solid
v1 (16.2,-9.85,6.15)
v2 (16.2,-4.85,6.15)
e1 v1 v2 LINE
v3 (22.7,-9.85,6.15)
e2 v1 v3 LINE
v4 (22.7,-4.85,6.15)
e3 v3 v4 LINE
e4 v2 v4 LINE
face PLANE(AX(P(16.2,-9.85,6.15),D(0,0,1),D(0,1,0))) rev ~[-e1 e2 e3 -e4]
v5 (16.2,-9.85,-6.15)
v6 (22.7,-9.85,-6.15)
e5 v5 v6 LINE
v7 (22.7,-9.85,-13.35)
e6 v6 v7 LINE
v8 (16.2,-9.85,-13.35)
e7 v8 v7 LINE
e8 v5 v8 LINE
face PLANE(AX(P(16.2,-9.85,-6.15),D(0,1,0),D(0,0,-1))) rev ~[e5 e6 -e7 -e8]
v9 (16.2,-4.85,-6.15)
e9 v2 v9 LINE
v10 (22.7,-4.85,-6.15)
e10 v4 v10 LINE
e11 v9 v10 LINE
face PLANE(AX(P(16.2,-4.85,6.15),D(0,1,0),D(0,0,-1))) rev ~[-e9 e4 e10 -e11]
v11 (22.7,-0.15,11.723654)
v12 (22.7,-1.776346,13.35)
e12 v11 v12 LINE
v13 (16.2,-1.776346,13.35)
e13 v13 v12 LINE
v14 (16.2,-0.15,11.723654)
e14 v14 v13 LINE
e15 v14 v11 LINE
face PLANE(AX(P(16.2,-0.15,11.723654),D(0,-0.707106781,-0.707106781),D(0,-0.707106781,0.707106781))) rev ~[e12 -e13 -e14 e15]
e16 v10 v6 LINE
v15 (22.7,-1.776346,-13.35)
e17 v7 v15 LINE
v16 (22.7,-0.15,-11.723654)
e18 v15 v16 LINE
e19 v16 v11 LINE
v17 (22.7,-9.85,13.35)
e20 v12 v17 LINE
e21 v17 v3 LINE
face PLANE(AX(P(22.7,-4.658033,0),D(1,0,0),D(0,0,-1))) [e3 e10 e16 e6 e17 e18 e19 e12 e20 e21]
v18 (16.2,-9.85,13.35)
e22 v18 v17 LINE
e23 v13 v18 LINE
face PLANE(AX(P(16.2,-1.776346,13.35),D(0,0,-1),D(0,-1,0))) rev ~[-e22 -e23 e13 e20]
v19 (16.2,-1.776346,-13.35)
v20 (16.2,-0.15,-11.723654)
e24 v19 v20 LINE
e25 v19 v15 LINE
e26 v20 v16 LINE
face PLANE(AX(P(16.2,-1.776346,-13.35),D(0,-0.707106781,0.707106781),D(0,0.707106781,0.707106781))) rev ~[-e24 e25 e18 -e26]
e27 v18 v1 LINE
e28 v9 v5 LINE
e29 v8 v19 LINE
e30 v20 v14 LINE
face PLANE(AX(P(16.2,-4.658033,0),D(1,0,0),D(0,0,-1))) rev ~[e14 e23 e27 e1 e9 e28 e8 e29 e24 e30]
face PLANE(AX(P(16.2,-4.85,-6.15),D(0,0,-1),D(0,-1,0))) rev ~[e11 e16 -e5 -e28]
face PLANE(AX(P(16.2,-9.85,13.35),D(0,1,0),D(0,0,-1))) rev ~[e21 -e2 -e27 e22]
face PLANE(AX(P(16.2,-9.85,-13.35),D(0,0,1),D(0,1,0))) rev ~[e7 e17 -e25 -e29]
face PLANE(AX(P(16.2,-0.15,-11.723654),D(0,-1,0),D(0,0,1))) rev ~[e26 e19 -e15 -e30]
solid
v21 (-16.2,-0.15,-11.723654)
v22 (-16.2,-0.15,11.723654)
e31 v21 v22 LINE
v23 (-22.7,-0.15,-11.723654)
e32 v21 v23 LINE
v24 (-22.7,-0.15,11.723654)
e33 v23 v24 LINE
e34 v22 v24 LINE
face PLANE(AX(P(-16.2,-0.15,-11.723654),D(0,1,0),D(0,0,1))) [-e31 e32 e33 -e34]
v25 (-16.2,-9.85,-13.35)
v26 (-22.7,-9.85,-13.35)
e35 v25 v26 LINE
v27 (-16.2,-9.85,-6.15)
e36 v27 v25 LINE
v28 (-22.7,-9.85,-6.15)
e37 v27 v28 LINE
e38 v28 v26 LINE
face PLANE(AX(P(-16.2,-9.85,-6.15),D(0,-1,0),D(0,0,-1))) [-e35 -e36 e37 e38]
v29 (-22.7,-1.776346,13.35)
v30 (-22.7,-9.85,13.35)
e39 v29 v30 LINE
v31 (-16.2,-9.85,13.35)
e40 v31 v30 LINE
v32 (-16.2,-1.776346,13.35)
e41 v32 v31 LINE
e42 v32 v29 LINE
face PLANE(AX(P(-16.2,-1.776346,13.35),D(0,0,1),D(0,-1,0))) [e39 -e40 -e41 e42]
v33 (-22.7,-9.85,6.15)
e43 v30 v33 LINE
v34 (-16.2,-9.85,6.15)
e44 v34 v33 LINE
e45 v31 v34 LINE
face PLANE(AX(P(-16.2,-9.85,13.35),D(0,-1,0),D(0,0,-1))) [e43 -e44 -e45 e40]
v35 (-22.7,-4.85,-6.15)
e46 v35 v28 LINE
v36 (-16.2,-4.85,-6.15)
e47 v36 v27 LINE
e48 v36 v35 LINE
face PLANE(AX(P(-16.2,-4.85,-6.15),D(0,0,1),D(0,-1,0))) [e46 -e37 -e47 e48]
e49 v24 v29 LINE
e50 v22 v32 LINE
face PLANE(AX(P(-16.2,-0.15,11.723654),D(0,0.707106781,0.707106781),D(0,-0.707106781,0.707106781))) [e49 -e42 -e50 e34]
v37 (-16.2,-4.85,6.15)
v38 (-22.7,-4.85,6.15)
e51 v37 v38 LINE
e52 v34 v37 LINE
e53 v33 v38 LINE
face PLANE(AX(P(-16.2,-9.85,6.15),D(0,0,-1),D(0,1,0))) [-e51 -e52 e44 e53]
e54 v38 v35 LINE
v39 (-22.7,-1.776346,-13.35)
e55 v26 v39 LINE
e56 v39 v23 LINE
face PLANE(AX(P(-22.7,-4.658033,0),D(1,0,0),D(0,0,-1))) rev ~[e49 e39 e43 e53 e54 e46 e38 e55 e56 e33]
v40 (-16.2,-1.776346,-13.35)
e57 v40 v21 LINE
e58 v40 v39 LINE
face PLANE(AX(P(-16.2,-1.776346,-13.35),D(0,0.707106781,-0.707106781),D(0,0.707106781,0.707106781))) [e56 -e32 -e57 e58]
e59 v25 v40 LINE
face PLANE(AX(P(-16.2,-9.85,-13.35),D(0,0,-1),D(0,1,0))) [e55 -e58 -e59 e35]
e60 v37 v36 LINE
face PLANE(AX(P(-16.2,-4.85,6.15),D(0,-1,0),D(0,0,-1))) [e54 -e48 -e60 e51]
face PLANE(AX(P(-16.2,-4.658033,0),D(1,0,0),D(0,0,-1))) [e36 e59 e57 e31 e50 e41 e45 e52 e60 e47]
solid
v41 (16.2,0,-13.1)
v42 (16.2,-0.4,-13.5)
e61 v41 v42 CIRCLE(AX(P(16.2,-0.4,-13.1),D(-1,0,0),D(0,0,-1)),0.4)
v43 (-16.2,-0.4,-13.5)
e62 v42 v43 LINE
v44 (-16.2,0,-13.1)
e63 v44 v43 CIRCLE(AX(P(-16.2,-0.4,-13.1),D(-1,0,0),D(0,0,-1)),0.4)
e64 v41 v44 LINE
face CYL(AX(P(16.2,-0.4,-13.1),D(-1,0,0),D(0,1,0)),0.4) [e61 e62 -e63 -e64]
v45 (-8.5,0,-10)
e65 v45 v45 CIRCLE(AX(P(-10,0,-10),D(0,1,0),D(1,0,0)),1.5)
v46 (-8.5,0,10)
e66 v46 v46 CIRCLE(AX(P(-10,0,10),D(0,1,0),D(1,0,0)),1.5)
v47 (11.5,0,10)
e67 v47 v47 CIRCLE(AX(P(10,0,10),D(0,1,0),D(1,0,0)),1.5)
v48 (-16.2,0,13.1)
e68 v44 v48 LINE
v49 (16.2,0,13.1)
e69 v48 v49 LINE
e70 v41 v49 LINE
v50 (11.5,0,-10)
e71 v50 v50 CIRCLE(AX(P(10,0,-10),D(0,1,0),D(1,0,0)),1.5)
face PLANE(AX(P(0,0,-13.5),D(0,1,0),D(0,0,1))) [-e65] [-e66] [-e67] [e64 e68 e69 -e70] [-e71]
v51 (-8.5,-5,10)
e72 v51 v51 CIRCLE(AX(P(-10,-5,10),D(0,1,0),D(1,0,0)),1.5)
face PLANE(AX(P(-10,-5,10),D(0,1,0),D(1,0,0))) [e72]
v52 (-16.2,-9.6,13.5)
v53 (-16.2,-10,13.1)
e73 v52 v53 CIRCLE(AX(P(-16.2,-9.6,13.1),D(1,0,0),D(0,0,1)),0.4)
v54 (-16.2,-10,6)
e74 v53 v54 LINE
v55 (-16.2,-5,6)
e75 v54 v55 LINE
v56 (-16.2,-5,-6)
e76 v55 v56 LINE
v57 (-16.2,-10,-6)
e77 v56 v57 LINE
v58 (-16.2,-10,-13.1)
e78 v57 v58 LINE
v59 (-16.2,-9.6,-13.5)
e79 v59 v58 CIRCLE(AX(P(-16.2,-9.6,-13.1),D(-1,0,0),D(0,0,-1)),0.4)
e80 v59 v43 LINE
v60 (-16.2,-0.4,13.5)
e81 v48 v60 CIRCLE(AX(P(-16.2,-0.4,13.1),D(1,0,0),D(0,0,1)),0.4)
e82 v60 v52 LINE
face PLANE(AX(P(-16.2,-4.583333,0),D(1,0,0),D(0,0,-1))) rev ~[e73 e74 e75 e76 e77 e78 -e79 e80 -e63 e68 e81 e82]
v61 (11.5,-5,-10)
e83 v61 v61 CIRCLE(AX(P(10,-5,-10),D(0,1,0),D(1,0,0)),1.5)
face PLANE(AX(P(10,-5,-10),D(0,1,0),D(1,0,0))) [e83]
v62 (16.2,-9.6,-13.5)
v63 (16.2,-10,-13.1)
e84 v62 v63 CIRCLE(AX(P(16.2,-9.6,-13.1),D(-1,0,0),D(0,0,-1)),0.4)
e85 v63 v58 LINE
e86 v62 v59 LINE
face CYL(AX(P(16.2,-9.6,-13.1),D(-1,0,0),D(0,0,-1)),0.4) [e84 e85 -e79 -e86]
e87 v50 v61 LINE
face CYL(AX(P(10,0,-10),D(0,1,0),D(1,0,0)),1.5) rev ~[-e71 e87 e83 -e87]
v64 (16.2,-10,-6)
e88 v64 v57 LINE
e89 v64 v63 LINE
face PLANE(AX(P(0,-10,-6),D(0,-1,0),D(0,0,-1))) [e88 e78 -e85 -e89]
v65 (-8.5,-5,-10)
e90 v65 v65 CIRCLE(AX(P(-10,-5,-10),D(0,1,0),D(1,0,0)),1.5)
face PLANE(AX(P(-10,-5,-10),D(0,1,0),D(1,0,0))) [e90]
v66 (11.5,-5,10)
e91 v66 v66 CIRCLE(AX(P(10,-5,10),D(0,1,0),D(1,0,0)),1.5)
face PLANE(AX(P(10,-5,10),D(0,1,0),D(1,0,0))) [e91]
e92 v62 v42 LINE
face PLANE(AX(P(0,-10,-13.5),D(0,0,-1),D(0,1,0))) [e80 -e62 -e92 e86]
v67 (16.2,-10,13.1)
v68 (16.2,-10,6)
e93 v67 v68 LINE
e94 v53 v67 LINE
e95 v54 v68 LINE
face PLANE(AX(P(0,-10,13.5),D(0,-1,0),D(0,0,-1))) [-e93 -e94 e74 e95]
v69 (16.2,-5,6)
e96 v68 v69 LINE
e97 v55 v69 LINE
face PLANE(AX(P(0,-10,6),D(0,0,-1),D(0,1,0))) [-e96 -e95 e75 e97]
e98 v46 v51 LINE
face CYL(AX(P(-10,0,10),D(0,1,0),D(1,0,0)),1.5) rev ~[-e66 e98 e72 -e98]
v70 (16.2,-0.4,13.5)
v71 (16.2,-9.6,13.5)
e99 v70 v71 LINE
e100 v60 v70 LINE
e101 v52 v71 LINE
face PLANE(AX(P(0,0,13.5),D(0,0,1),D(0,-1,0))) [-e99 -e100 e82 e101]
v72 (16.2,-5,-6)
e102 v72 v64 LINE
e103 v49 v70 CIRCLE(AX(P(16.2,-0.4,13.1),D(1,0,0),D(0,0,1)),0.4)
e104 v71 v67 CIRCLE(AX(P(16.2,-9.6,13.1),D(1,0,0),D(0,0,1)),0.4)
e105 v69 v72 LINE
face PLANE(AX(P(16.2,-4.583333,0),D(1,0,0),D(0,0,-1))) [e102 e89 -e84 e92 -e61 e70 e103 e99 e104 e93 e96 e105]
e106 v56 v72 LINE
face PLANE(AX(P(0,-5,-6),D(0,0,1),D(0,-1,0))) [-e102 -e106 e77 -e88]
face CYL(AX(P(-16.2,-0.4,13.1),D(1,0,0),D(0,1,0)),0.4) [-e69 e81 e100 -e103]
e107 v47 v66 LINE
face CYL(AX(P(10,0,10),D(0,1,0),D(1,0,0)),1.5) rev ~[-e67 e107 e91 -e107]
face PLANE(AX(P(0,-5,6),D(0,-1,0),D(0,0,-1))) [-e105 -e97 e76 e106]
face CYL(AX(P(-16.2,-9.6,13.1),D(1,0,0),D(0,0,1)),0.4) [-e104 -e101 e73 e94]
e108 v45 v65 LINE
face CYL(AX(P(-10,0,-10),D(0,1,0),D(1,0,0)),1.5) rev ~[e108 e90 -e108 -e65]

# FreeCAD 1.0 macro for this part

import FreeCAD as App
import Part
import Sketcher
from FreeCAD import Vector
Q = App.Units.Quantity


def edges_at(feature, points):
    """Names of the edges that pass closest to the given points."""
    edges = feature.Shape.Edges
    near = lambda p: min(range(len(edges)), key=lambda i: edges[i].distToShape(Part.Vertex(*p))[0])
    return sorted({f"Edge{near(p) + 1}" for p in points})


def add_polygon(sketch, points):
    """Adds a closed chain of lines whose ends are joined by coincident constraints."""
    first, n = sketch.GeometryCount, len(points)
    for a, b in zip(points, points[1:] + points[:1]):
        sketch.addGeometry(Part.LineSegment(App.Vector(*a, 0), App.Vector(*b, 0)), False)
    for i in range(n):
        sketch.addConstraint(Sketcher.Constraint("Coincident", first + i, 2, first + (i + 1) % n, 1))

doc = App.newDocument("Part")
body = doc.addObject("PartDesign::Body", "Body")

# Sketch on YZ plane
sketch1 = doc.addObject("Sketcher::SketchObject", "Sketch")
body.addObject(sketch1)
sketch1.AttachmentSupport = (doc.YZ_Plane, [""])
sketch1.MapMode = "FlatFace"
add_polygon(sketch1, [(0, -14), (0, 14), (-10, 14), (-10, 6), (-5, 6), (-5, -6), (-10, -6), (-10, -14)])  # lines 0-7
sketch1.addConstraint([
    Sketcher.Constraint("Vertical", 0),
    Sketcher.Constraint("Horizontal", 1),
    Sketcher.Constraint("Vertical", 2),
    Sketcher.Constraint("Horizontal", 3),
    Sketcher.Constraint("Vertical", 4),
    Sketcher.Constraint("Horizontal", 5),
    Sketcher.Constraint("Vertical", 6),
    Sketcher.Constraint("Horizontal", 7),
    Sketcher.Constraint("Symmetric", 0, 2, 7, 2, -1, 1),
    Sketcher.Constraint("Symmetric", 2, 2, 5, 2, -1),
    Sketcher.Constraint("DistanceX", 1, 2, 1, 1, Q("10 mm")),
    Sketcher.Constraint("DistanceX", 3, 1, 3, 2, Q("5 mm")),
    Sketcher.Constraint("DistanceY", 0, 1, 0, 2, Q("27 mm")),
    Sketcher.Constraint("DistanceY", 4, 2, 4, 1, Q("12 mm")),
])
pad1 = doc.addObject("PartDesign::Pad", "Pad")
body.addObject(pad1)
pad1.Profile = sketch1
pad1.Type = "TwoLengths"
pad1.Length = 16.2
pad1.Length2 = 16.2

# Sketch on XZ plane
sketch2 = doc.addObject("Sketcher::SketchObject", "Sketch001")
body.addObject(sketch2)
sketch2.AttachmentSupport = (doc.XZ_Plane, [""])
sketch2.MapMode = "FlatFace"
sketch2.addGeometry([
    Part.Circle(Vector(-10, -10, 0), Vector(0, 0, 1), 1.5),
    Part.Circle(Vector(-10, 10, 0), Vector(0, 0, 1), 1.5),
    Part.Circle(Vector(10, 10, 0), Vector(0, 0, 1), 1.5),
    Part.Circle(Vector(10, -10, 0), Vector(0, 0, 1), 1.5),
], False)
sketch2.addConstraint([
    Sketcher.Constraint("Equal", 0, 1),
    Sketcher.Constraint("Equal", 1, 2),
    Sketcher.Constraint("Equal", 2, 3),
    Sketcher.Constraint("Symmetric", 0, 3, 2, 3, -1, 1),
    Sketcher.Constraint("Symmetric", 1, 3, 3, 3, -1, 1),
    Sketcher.Constraint("Symmetric", 1, 3, 2, 3, -2),
    Sketcher.Constraint("Diameter", 0, Q("3 mm")),
    Sketcher.Constraint("DistanceX", 0, 3, -1, 1, Q("10 mm")),
    Sketcher.Constraint("DistanceY", 0, 3, -1, 1, Q("10 mm")),
])
pocket1 = doc.addObject("PartDesign::Pocket", "Pocket")
body.addObject(pocket1)
pocket1.Profile = sketch2
pocket1.Length = 5
pocket1.Reversed = True
doc.recompute()

fillet = doc.addObject("PartDesign::Fillet", "Fillet")
body.addObject(fillet)
fillet.Base = (pocket1, edges_at(pocket1, [
    (0, -10, 13.5),
    (0, 0, 13.5),
    (0, 0, -13.5),
    (0, -10, -13.5),
]))
fillet.Radius = 0.4
body2 = doc.addObject("PartDesign::Body", "Body001")

# Sketch on YZ plane
sketch3 = doc.addObject("Sketcher::SketchObject", "Sketch002")
body2.addObject(sketch3)
sketch3.AttachmentSupport = (doc.getObject("YZ_Plane001"), [""])
sketch3.MapMode = "FlatFace"
sketch3.AttachmentOffset = App.Placement(Vector(0, 0, -16.2), App.Rotation())
add_polygon(sketch3, [(-0.1, -11.7), (-1.8, -13.3), (-9.8, -13.3), (-9.8, -6.2), (-4.8, -6.2), (-4.8, 6.2), (-9.8, 6.2), (-9.8, 13.3), (-1.8, 13.3), (-0.1, 11.7)])  # lines 0-9
sketch3.addConstraint([
    Sketcher.Constraint("Horizontal", 1),
    Sketcher.Constraint("Vertical", 2),
    Sketcher.Constraint("Horizontal", 3),
    Sketcher.Constraint("Vertical", 4),
    Sketcher.Constraint("Horizontal", 5),
    Sketcher.Constraint("Vertical", 6),
    Sketcher.Constraint("Horizontal", 7),
    Sketcher.Constraint("Vertical", 9),
    Sketcher.Constraint("Symmetric", 2, 2, 5, 2, -1),
    Sketcher.Constraint("Symmetric", 0, 2, 7, 2, -1),
    Sketcher.Constraint("Perpendicular", 0, 8),
    Sketcher.Constraint("Equal", 0, 8),
    Sketcher.Constraint("DistanceX", 3, 1, 3, 2, Q("5 mm")),
    Sketcher.Constraint("DistanceY", 2, 1, 2, 2, Q("7.2 mm")),
    Sketcher.Constraint("DistanceY", 4, 1, 4, 2, Q("12.3 mm")),
    Sketcher.Constraint("Distance", 0, Q("2.3 mm")),
    Sketcher.Constraint("DistanceX", 4, 2, 8, 2, Q("4.7 mm")),
    Sketcher.Constraint("DistanceX", 1, 2, -1, 1, Q("9.85 mm")),
])
pad2 = doc.addObject("PartDesign::Pad", "Pad001")
body2.addObject(pad2)
pad2.Profile = sketch3
pad2.Length = 6.5
pad2.Reversed = True
body3 = doc.addObject("PartDesign::Body", "Body002")

# Sketch on YZ plane
sketch4 = doc.addObject("Sketcher::SketchObject", "Sketch003")
body3.addObject(sketch4)
sketch4.AttachmentSupport = (doc.getObject("YZ_Plane002"), [""])
sketch4.MapMode = "FlatFace"
sketch4.AttachmentOffset = App.Placement(Vector(0, 0, 16.2), App.Rotation())
add_polygon(sketch4, [(-1.8, -13.3), (-0.1, -11.7), (-0.1, 11.7), (-1.8, 13.3), (-9.8, 13.3), (-9.8, 6.2), (-4.8, 6.2), (-4.8, -6.2), (-9.8, -6.2), (-9.8, -13.3)])  # lines 0-9
sketch4.addConstraint([
    Sketcher.Constraint("Vertical", 1),
    Sketcher.Constraint("Horizontal", 3),
    Sketcher.Constraint("Vertical", 4),
    Sketcher.Constraint("Horizontal", 5),
    Sketcher.Constraint("Vertical", 6),
    Sketcher.Constraint("Horizontal", 7),
    Sketcher.Constraint("Vertical", 8),
    Sketcher.Constraint("Horizontal", 9),
    Sketcher.Constraint("Symmetric", 4, 2, 7, 2, -1),
    Sketcher.Constraint("Symmetric", 2, 2, 9, 2, -1),
    Sketcher.Constraint("Perpendicular", 0, 2),
    Sketcher.Constraint("Equal", 0, 2),
    Sketcher.Constraint("DistanceX", 5, 1, 5, 2, Q("5 mm")),
    Sketcher.Constraint("DistanceY", 4, 2, 4, 1, Q("7.2 mm")),
    Sketcher.Constraint("DistanceY", 6, 2, 6, 1, Q("12.3 mm")),
    Sketcher.Constraint("Distance", 0, Q("2.3 mm")),
    Sketcher.Constraint("DistanceX", 3, 2, 1, 2, Q("9.7 mm")),
    Sketcher.Constraint("DistanceX", 0, 2, -1, 1, Q("0.15 mm")),
])
pad3 = doc.addObject("PartDesign::Pad", "Pad002")
body3.addObject(pad3)
pad3.Profile = sketch4
pad3.Length = 6.5

doc.recompute()
